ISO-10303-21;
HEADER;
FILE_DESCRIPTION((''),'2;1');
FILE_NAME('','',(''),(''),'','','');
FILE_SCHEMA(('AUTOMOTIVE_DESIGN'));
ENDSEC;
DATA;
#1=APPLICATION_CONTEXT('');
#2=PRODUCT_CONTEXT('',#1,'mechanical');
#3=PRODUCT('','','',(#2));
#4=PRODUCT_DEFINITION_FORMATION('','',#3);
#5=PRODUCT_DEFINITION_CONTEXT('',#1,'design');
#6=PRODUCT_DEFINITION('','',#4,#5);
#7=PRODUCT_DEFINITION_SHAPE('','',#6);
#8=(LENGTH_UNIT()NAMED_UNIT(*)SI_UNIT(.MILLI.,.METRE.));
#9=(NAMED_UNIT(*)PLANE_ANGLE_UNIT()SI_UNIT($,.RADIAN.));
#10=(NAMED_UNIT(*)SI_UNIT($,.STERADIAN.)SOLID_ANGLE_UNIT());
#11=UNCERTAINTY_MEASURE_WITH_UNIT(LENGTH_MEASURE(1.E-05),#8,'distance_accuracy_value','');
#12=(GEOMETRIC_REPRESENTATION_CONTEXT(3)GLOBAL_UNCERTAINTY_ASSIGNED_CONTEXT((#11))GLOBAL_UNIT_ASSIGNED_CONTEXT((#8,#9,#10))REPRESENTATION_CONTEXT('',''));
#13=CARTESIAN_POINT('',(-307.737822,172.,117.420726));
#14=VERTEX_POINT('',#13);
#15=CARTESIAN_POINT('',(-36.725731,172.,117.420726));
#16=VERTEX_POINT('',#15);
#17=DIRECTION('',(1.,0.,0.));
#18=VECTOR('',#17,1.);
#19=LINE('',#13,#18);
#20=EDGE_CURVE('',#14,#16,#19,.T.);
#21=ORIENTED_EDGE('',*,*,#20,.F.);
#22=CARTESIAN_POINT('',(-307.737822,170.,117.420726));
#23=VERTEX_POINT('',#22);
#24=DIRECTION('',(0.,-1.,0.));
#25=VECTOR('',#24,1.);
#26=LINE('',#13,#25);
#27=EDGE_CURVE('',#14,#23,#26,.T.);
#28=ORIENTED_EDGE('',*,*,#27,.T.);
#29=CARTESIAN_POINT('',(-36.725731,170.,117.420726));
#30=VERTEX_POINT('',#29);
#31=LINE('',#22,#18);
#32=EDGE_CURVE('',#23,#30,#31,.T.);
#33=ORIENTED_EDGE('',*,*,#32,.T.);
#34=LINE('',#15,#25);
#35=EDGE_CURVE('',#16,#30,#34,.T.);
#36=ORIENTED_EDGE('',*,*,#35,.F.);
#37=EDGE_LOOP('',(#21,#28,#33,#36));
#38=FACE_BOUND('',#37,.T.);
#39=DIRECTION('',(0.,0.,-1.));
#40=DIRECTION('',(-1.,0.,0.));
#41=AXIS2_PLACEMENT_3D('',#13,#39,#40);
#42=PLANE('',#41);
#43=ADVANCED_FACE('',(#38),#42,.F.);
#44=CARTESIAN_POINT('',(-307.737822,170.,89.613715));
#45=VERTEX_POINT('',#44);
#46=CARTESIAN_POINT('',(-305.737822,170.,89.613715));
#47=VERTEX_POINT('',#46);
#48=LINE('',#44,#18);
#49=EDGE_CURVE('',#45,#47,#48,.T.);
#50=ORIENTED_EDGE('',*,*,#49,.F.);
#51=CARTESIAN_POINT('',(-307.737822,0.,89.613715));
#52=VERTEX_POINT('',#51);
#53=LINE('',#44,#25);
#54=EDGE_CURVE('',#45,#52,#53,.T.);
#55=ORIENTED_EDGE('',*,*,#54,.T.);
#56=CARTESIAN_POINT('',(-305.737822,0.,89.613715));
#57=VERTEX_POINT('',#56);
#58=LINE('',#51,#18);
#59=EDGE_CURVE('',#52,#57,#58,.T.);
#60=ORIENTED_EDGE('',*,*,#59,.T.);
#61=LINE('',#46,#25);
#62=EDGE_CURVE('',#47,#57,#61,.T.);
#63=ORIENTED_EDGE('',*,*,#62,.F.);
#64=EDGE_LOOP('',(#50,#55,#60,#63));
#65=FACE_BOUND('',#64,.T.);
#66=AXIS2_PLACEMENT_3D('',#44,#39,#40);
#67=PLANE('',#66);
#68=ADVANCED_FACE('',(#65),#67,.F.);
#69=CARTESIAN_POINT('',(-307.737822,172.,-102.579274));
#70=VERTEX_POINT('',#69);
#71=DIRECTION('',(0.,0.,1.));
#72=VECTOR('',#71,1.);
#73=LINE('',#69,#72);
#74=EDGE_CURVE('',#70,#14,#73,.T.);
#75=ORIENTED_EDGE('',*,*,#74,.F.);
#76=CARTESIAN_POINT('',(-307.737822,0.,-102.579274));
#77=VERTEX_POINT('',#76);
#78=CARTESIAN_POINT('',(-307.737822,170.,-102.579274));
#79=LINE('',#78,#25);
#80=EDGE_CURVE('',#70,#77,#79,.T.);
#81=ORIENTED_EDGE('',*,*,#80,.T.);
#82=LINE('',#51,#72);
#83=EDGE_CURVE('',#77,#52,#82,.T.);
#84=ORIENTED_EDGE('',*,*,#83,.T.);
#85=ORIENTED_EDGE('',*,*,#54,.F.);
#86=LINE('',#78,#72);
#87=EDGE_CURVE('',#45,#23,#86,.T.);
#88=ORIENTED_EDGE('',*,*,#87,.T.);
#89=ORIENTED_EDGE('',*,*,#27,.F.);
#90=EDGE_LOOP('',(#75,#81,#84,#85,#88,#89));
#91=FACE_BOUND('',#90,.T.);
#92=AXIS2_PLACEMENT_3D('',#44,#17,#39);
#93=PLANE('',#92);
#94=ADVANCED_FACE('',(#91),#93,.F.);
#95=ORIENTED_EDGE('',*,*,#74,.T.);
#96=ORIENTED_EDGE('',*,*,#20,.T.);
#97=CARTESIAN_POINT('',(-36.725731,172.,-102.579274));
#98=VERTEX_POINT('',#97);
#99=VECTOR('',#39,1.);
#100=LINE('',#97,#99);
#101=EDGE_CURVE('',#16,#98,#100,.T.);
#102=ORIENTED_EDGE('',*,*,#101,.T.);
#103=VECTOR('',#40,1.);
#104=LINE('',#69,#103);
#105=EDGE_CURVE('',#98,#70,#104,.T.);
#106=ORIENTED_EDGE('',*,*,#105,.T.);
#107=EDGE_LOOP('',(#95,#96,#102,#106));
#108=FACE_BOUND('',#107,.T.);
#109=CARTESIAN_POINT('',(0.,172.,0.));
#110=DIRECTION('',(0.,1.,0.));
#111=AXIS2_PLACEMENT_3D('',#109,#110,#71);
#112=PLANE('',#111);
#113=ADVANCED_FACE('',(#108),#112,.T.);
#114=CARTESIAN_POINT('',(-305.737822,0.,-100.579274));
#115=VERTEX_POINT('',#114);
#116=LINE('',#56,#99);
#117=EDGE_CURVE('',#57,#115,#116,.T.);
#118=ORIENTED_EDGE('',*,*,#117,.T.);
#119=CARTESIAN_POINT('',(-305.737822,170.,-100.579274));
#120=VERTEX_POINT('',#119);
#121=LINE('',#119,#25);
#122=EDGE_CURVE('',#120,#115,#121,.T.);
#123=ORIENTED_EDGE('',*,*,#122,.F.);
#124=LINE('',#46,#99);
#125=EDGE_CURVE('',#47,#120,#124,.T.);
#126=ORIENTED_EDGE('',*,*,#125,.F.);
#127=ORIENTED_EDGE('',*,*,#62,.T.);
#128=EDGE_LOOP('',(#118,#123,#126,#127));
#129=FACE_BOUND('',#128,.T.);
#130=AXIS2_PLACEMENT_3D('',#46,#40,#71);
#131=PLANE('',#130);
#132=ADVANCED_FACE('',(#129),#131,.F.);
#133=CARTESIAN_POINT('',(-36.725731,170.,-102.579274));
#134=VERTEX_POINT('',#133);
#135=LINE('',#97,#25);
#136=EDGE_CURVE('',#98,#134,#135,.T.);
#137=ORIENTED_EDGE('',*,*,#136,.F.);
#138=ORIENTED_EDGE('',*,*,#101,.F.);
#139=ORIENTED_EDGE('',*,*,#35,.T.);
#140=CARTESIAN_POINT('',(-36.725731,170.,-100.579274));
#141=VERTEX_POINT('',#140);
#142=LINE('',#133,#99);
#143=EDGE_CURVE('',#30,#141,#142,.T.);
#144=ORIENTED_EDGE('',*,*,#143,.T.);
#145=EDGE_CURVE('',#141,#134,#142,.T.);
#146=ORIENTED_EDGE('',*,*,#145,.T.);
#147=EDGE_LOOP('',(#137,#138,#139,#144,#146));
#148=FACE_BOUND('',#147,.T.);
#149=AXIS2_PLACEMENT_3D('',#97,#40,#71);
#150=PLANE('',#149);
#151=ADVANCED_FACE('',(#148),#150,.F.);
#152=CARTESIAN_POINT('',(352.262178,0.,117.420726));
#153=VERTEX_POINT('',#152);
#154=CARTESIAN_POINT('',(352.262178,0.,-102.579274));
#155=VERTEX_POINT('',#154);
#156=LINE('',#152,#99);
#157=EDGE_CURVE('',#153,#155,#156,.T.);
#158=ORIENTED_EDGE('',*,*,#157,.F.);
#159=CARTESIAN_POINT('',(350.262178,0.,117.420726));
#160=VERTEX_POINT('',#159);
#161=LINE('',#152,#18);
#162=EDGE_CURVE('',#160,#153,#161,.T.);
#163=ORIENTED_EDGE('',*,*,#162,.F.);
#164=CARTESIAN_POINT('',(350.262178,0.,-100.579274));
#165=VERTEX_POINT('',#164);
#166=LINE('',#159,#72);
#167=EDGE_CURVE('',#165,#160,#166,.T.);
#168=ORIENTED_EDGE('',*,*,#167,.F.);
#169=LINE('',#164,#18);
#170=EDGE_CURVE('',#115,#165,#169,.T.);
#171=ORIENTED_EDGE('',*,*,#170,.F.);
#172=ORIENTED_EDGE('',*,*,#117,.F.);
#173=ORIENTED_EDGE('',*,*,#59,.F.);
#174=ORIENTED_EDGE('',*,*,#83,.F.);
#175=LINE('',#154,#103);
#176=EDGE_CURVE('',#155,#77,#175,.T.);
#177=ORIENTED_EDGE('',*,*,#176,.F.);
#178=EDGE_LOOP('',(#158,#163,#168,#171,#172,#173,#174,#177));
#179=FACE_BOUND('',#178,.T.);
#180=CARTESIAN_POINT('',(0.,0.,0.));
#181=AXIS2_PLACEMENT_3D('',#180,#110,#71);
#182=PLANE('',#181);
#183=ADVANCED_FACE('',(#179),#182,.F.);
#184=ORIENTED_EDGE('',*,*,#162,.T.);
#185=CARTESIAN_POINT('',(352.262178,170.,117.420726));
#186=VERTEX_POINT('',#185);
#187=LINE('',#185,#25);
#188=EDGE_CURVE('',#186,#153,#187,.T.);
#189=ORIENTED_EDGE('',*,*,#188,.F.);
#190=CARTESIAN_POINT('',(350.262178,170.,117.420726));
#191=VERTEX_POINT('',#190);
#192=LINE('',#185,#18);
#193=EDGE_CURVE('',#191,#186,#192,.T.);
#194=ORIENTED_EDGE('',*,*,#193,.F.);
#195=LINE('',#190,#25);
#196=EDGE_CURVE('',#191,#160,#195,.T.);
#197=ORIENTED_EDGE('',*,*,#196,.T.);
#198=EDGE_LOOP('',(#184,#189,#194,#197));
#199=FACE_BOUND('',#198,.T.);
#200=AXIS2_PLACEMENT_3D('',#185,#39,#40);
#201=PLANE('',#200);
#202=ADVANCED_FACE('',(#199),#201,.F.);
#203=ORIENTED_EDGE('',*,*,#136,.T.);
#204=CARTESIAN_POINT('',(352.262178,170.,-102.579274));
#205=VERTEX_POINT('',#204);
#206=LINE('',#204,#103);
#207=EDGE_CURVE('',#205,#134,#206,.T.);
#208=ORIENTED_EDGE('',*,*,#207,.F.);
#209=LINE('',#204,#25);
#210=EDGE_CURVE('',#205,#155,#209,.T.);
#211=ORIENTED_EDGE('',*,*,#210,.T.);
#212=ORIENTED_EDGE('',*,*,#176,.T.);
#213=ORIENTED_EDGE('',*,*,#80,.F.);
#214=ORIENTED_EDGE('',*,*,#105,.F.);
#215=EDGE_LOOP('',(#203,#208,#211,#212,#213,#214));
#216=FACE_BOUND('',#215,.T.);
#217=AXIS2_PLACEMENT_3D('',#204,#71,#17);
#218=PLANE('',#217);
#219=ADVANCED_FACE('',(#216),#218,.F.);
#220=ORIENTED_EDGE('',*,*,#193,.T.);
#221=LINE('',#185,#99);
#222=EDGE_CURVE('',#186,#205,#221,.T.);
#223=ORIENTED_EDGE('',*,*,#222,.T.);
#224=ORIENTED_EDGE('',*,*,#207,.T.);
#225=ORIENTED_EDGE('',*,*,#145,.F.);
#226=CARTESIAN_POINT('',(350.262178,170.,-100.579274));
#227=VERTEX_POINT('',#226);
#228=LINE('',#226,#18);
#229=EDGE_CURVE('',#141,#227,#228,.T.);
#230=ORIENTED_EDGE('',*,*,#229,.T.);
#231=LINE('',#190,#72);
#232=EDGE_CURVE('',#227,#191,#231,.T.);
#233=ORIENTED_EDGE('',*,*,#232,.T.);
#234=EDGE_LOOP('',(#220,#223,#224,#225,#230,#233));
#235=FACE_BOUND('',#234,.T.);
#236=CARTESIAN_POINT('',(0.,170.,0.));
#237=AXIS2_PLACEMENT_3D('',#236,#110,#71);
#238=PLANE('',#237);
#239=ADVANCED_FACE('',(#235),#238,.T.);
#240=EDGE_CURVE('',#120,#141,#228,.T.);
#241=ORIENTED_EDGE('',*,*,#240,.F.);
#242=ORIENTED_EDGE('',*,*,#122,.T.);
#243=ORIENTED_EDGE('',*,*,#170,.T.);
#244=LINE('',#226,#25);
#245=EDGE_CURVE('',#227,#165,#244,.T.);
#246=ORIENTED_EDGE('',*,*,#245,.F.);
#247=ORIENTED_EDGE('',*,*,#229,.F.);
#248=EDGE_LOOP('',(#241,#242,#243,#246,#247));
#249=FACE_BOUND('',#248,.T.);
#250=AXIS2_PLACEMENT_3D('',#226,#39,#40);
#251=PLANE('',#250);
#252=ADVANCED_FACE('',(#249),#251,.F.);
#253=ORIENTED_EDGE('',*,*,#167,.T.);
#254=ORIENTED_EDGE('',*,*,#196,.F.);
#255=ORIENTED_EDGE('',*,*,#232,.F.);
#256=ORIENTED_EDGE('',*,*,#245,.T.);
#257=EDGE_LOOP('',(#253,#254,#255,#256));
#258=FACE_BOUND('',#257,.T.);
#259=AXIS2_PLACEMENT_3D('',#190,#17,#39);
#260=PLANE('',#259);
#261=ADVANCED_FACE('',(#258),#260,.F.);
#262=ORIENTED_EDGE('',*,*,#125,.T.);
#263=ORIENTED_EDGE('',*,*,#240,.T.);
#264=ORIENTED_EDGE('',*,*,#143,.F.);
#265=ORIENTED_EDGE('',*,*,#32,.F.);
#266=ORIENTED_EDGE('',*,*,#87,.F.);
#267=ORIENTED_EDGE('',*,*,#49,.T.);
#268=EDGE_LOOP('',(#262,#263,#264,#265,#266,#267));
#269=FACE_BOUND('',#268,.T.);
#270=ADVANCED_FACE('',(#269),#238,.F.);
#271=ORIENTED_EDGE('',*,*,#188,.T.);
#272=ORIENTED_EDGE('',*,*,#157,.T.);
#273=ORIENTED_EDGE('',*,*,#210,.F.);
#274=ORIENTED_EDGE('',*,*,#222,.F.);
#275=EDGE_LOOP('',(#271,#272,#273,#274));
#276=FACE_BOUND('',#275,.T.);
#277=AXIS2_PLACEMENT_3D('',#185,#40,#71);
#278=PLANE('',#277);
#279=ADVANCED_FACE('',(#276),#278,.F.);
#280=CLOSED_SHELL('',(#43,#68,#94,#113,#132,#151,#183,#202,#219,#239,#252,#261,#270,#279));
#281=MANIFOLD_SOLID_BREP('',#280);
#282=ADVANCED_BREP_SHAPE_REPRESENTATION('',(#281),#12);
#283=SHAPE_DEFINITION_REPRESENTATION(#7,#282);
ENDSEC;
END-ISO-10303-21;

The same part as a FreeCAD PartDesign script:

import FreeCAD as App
import Part
import Sketcher
Q = App.Units.Quantity

doc = App.newDocument("Part")
body = doc.addObject("PartDesign::Body", "Body")

# Sketch on XZ plane
sketch1 = body.newObject("Sketcher::SketchObject", "Sketch")
sketch1.AttachmentSupport = (doc.getObject("XZ_Plane"), [""])
sketch1.MapMode = "FlatFace"
sketch1.addGeometry([
    Part.LineSegment(App.Vector(-305.737822, 89.613715, 0), App.Vector(-305.737822, -100.579274, 0)),  # 0
    Part.LineSegment(App.Vector(-305.737822, -100.579274, 0), App.Vector(350.262178, -100.579274, 0)),  # 1
    Part.LineSegment(App.Vector(350.262178, -100.579274, 0), App.Vector(350.262178, 117.420726, 0)),  # 2
    Part.LineSegment(App.Vector(350.262178, 117.420726, 0), App.Vector(352.262178, 117.420726, 0)),  # 3
    Part.LineSegment(App.Vector(352.262178, 117.420726, 0), App.Vector(352.262178, -102.579274, 0)),  # 4
    Part.LineSegment(App.Vector(352.262178, -102.579274, 0), App.Vector(-307.737822, -102.579274, 0)),  # 5
    Part.LineSegment(App.Vector(-307.737822, -102.579274, 0), App.Vector(-307.737822, 89.613715, 0)),  # 6
    Part.LineSegment(App.Vector(-307.737822, 89.613715, 0), App.Vector(-305.737822, 89.613715, 0)),  # 7
], False)
sketch1.addConstraint([
    Sketcher.Constraint("Coincident", 0, 2, 1, 1),
    Sketcher.Constraint("Coincident", 1, 2, 2, 1),
    Sketcher.Constraint("Coincident", 2, 2, 3, 1),
    Sketcher.Constraint("Coincident", 3, 2, 4, 1),
    Sketcher.Constraint("Coincident", 4, 2, 5, 1),
    Sketcher.Constraint("Coincident", 5, 2, 6, 1),
    Sketcher.Constraint("Coincident", 6, 2, 7, 1),
    Sketcher.Constraint("Coincident", 7, 2, 0, 1),
    Sketcher.Constraint("Vertical", 0),
    Sketcher.Constraint("Horizontal", 1),
    Sketcher.Constraint("Vertical", 2),
    Sketcher.Constraint("Horizontal", 3),
    Sketcher.Constraint("Vertical", 4),
    Sketcher.Constraint("Horizontal", 5),
    Sketcher.Constraint("Vertical", 6),
    Sketcher.Constraint("Horizontal", 7),
    Sketcher.Constraint("Equal", 3, 7),
    Sketcher.Constraint("DistanceX", 1, 1, 1, 2, Q("656 mm")),
    Sketcher.Constraint("DistanceX", 3, 1, 3, 2, Q("2 mm")),
    Sketcher.Constraint("DistanceY", 2, 1, 2, 2, Q("218 mm")),
    Sketcher.Constraint("DistanceY", 4, 2, 4, 1, Q("220 mm")),
    Sketcher.Constraint("DistanceY", 0, 2, 0, 1, Q("190.192988 mm")),
    Sketcher.Constraint("DistanceX", 0, 2, -1, 1, Q("305.737822 mm")),
    Sketcher.Constraint("DistanceY", 0, 2, -1, 1, Q("100.579274 mm")),
])
pad1 = body.newObject("PartDesign::Pad", "Pad")
pad1.Profile = sketch1
pad1.Length = 170
pad1.Reversed = True

# Sketch on XZ plane
sketch2 = body.newObject("Sketcher::SketchObject", "Sketch001")
sketch2.AttachmentSupport = (doc.getObject("XZ_Plane"), [""])
sketch2.MapMode = "FlatFace"
sketch2.AttachmentOffset = App.Placement(App.Vector(0, 0, -170), App.Rotation())
sketch2.addGeometry([
    Part.LineSegment(App.Vector(-307.737822, -102.579274, 0), App.Vector(-307.737822, 117.420726, 0)),
    Part.LineSegment(App.Vector(-307.737822, 117.420726, 0), App.Vector(-36.725731, 117.420726, 0)),
    Part.LineSegment(App.Vector(-36.725731, 117.420726, 0), App.Vector(-36.725731, -102.579274, 0)),
    Part.LineSegment(App.Vector(-36.725731, -102.579274, 0), App.Vector(-307.737822, -102.579274, 0)),
], False)
sketch2.addConstraint([
    Sketcher.Constraint("Coincident", 0, 2, 1, 1),
    Sketcher.Constraint("Coincident", 1, 2, 2, 1),
    Sketcher.Constraint("Coincident", 2, 2, 3, 1),
    Sketcher.Constraint("Coincident", 3, 2, 0, 1),
    Sketcher.Constraint("Vertical", 0),
    Sketcher.Constraint("Horizontal", 1),
    Sketcher.Constraint("Vertical", 2),
    Sketcher.Constraint("Horizontal", 3),
    Sketcher.Constraint("DistanceY", 0, 1, 0, 2, Q("220 mm")),
    Sketcher.Constraint("DistanceX", 1, 1, 1, 2, Q("271.012091 mm")),
    Sketcher.Constraint("DistanceX", 0, 2, -1, 1, Q("307.737822 mm")),
    Sketcher.Constraint("DistanceY", -1, 1, 0, 2, Q("117.420726 mm")),
])
pad2 = body.newObject("PartDesign::Pad", "Pad001")
pad2.Profile = sketch2
pad2.Length = 2
pad2.Reversed = True

doc.recompute()
